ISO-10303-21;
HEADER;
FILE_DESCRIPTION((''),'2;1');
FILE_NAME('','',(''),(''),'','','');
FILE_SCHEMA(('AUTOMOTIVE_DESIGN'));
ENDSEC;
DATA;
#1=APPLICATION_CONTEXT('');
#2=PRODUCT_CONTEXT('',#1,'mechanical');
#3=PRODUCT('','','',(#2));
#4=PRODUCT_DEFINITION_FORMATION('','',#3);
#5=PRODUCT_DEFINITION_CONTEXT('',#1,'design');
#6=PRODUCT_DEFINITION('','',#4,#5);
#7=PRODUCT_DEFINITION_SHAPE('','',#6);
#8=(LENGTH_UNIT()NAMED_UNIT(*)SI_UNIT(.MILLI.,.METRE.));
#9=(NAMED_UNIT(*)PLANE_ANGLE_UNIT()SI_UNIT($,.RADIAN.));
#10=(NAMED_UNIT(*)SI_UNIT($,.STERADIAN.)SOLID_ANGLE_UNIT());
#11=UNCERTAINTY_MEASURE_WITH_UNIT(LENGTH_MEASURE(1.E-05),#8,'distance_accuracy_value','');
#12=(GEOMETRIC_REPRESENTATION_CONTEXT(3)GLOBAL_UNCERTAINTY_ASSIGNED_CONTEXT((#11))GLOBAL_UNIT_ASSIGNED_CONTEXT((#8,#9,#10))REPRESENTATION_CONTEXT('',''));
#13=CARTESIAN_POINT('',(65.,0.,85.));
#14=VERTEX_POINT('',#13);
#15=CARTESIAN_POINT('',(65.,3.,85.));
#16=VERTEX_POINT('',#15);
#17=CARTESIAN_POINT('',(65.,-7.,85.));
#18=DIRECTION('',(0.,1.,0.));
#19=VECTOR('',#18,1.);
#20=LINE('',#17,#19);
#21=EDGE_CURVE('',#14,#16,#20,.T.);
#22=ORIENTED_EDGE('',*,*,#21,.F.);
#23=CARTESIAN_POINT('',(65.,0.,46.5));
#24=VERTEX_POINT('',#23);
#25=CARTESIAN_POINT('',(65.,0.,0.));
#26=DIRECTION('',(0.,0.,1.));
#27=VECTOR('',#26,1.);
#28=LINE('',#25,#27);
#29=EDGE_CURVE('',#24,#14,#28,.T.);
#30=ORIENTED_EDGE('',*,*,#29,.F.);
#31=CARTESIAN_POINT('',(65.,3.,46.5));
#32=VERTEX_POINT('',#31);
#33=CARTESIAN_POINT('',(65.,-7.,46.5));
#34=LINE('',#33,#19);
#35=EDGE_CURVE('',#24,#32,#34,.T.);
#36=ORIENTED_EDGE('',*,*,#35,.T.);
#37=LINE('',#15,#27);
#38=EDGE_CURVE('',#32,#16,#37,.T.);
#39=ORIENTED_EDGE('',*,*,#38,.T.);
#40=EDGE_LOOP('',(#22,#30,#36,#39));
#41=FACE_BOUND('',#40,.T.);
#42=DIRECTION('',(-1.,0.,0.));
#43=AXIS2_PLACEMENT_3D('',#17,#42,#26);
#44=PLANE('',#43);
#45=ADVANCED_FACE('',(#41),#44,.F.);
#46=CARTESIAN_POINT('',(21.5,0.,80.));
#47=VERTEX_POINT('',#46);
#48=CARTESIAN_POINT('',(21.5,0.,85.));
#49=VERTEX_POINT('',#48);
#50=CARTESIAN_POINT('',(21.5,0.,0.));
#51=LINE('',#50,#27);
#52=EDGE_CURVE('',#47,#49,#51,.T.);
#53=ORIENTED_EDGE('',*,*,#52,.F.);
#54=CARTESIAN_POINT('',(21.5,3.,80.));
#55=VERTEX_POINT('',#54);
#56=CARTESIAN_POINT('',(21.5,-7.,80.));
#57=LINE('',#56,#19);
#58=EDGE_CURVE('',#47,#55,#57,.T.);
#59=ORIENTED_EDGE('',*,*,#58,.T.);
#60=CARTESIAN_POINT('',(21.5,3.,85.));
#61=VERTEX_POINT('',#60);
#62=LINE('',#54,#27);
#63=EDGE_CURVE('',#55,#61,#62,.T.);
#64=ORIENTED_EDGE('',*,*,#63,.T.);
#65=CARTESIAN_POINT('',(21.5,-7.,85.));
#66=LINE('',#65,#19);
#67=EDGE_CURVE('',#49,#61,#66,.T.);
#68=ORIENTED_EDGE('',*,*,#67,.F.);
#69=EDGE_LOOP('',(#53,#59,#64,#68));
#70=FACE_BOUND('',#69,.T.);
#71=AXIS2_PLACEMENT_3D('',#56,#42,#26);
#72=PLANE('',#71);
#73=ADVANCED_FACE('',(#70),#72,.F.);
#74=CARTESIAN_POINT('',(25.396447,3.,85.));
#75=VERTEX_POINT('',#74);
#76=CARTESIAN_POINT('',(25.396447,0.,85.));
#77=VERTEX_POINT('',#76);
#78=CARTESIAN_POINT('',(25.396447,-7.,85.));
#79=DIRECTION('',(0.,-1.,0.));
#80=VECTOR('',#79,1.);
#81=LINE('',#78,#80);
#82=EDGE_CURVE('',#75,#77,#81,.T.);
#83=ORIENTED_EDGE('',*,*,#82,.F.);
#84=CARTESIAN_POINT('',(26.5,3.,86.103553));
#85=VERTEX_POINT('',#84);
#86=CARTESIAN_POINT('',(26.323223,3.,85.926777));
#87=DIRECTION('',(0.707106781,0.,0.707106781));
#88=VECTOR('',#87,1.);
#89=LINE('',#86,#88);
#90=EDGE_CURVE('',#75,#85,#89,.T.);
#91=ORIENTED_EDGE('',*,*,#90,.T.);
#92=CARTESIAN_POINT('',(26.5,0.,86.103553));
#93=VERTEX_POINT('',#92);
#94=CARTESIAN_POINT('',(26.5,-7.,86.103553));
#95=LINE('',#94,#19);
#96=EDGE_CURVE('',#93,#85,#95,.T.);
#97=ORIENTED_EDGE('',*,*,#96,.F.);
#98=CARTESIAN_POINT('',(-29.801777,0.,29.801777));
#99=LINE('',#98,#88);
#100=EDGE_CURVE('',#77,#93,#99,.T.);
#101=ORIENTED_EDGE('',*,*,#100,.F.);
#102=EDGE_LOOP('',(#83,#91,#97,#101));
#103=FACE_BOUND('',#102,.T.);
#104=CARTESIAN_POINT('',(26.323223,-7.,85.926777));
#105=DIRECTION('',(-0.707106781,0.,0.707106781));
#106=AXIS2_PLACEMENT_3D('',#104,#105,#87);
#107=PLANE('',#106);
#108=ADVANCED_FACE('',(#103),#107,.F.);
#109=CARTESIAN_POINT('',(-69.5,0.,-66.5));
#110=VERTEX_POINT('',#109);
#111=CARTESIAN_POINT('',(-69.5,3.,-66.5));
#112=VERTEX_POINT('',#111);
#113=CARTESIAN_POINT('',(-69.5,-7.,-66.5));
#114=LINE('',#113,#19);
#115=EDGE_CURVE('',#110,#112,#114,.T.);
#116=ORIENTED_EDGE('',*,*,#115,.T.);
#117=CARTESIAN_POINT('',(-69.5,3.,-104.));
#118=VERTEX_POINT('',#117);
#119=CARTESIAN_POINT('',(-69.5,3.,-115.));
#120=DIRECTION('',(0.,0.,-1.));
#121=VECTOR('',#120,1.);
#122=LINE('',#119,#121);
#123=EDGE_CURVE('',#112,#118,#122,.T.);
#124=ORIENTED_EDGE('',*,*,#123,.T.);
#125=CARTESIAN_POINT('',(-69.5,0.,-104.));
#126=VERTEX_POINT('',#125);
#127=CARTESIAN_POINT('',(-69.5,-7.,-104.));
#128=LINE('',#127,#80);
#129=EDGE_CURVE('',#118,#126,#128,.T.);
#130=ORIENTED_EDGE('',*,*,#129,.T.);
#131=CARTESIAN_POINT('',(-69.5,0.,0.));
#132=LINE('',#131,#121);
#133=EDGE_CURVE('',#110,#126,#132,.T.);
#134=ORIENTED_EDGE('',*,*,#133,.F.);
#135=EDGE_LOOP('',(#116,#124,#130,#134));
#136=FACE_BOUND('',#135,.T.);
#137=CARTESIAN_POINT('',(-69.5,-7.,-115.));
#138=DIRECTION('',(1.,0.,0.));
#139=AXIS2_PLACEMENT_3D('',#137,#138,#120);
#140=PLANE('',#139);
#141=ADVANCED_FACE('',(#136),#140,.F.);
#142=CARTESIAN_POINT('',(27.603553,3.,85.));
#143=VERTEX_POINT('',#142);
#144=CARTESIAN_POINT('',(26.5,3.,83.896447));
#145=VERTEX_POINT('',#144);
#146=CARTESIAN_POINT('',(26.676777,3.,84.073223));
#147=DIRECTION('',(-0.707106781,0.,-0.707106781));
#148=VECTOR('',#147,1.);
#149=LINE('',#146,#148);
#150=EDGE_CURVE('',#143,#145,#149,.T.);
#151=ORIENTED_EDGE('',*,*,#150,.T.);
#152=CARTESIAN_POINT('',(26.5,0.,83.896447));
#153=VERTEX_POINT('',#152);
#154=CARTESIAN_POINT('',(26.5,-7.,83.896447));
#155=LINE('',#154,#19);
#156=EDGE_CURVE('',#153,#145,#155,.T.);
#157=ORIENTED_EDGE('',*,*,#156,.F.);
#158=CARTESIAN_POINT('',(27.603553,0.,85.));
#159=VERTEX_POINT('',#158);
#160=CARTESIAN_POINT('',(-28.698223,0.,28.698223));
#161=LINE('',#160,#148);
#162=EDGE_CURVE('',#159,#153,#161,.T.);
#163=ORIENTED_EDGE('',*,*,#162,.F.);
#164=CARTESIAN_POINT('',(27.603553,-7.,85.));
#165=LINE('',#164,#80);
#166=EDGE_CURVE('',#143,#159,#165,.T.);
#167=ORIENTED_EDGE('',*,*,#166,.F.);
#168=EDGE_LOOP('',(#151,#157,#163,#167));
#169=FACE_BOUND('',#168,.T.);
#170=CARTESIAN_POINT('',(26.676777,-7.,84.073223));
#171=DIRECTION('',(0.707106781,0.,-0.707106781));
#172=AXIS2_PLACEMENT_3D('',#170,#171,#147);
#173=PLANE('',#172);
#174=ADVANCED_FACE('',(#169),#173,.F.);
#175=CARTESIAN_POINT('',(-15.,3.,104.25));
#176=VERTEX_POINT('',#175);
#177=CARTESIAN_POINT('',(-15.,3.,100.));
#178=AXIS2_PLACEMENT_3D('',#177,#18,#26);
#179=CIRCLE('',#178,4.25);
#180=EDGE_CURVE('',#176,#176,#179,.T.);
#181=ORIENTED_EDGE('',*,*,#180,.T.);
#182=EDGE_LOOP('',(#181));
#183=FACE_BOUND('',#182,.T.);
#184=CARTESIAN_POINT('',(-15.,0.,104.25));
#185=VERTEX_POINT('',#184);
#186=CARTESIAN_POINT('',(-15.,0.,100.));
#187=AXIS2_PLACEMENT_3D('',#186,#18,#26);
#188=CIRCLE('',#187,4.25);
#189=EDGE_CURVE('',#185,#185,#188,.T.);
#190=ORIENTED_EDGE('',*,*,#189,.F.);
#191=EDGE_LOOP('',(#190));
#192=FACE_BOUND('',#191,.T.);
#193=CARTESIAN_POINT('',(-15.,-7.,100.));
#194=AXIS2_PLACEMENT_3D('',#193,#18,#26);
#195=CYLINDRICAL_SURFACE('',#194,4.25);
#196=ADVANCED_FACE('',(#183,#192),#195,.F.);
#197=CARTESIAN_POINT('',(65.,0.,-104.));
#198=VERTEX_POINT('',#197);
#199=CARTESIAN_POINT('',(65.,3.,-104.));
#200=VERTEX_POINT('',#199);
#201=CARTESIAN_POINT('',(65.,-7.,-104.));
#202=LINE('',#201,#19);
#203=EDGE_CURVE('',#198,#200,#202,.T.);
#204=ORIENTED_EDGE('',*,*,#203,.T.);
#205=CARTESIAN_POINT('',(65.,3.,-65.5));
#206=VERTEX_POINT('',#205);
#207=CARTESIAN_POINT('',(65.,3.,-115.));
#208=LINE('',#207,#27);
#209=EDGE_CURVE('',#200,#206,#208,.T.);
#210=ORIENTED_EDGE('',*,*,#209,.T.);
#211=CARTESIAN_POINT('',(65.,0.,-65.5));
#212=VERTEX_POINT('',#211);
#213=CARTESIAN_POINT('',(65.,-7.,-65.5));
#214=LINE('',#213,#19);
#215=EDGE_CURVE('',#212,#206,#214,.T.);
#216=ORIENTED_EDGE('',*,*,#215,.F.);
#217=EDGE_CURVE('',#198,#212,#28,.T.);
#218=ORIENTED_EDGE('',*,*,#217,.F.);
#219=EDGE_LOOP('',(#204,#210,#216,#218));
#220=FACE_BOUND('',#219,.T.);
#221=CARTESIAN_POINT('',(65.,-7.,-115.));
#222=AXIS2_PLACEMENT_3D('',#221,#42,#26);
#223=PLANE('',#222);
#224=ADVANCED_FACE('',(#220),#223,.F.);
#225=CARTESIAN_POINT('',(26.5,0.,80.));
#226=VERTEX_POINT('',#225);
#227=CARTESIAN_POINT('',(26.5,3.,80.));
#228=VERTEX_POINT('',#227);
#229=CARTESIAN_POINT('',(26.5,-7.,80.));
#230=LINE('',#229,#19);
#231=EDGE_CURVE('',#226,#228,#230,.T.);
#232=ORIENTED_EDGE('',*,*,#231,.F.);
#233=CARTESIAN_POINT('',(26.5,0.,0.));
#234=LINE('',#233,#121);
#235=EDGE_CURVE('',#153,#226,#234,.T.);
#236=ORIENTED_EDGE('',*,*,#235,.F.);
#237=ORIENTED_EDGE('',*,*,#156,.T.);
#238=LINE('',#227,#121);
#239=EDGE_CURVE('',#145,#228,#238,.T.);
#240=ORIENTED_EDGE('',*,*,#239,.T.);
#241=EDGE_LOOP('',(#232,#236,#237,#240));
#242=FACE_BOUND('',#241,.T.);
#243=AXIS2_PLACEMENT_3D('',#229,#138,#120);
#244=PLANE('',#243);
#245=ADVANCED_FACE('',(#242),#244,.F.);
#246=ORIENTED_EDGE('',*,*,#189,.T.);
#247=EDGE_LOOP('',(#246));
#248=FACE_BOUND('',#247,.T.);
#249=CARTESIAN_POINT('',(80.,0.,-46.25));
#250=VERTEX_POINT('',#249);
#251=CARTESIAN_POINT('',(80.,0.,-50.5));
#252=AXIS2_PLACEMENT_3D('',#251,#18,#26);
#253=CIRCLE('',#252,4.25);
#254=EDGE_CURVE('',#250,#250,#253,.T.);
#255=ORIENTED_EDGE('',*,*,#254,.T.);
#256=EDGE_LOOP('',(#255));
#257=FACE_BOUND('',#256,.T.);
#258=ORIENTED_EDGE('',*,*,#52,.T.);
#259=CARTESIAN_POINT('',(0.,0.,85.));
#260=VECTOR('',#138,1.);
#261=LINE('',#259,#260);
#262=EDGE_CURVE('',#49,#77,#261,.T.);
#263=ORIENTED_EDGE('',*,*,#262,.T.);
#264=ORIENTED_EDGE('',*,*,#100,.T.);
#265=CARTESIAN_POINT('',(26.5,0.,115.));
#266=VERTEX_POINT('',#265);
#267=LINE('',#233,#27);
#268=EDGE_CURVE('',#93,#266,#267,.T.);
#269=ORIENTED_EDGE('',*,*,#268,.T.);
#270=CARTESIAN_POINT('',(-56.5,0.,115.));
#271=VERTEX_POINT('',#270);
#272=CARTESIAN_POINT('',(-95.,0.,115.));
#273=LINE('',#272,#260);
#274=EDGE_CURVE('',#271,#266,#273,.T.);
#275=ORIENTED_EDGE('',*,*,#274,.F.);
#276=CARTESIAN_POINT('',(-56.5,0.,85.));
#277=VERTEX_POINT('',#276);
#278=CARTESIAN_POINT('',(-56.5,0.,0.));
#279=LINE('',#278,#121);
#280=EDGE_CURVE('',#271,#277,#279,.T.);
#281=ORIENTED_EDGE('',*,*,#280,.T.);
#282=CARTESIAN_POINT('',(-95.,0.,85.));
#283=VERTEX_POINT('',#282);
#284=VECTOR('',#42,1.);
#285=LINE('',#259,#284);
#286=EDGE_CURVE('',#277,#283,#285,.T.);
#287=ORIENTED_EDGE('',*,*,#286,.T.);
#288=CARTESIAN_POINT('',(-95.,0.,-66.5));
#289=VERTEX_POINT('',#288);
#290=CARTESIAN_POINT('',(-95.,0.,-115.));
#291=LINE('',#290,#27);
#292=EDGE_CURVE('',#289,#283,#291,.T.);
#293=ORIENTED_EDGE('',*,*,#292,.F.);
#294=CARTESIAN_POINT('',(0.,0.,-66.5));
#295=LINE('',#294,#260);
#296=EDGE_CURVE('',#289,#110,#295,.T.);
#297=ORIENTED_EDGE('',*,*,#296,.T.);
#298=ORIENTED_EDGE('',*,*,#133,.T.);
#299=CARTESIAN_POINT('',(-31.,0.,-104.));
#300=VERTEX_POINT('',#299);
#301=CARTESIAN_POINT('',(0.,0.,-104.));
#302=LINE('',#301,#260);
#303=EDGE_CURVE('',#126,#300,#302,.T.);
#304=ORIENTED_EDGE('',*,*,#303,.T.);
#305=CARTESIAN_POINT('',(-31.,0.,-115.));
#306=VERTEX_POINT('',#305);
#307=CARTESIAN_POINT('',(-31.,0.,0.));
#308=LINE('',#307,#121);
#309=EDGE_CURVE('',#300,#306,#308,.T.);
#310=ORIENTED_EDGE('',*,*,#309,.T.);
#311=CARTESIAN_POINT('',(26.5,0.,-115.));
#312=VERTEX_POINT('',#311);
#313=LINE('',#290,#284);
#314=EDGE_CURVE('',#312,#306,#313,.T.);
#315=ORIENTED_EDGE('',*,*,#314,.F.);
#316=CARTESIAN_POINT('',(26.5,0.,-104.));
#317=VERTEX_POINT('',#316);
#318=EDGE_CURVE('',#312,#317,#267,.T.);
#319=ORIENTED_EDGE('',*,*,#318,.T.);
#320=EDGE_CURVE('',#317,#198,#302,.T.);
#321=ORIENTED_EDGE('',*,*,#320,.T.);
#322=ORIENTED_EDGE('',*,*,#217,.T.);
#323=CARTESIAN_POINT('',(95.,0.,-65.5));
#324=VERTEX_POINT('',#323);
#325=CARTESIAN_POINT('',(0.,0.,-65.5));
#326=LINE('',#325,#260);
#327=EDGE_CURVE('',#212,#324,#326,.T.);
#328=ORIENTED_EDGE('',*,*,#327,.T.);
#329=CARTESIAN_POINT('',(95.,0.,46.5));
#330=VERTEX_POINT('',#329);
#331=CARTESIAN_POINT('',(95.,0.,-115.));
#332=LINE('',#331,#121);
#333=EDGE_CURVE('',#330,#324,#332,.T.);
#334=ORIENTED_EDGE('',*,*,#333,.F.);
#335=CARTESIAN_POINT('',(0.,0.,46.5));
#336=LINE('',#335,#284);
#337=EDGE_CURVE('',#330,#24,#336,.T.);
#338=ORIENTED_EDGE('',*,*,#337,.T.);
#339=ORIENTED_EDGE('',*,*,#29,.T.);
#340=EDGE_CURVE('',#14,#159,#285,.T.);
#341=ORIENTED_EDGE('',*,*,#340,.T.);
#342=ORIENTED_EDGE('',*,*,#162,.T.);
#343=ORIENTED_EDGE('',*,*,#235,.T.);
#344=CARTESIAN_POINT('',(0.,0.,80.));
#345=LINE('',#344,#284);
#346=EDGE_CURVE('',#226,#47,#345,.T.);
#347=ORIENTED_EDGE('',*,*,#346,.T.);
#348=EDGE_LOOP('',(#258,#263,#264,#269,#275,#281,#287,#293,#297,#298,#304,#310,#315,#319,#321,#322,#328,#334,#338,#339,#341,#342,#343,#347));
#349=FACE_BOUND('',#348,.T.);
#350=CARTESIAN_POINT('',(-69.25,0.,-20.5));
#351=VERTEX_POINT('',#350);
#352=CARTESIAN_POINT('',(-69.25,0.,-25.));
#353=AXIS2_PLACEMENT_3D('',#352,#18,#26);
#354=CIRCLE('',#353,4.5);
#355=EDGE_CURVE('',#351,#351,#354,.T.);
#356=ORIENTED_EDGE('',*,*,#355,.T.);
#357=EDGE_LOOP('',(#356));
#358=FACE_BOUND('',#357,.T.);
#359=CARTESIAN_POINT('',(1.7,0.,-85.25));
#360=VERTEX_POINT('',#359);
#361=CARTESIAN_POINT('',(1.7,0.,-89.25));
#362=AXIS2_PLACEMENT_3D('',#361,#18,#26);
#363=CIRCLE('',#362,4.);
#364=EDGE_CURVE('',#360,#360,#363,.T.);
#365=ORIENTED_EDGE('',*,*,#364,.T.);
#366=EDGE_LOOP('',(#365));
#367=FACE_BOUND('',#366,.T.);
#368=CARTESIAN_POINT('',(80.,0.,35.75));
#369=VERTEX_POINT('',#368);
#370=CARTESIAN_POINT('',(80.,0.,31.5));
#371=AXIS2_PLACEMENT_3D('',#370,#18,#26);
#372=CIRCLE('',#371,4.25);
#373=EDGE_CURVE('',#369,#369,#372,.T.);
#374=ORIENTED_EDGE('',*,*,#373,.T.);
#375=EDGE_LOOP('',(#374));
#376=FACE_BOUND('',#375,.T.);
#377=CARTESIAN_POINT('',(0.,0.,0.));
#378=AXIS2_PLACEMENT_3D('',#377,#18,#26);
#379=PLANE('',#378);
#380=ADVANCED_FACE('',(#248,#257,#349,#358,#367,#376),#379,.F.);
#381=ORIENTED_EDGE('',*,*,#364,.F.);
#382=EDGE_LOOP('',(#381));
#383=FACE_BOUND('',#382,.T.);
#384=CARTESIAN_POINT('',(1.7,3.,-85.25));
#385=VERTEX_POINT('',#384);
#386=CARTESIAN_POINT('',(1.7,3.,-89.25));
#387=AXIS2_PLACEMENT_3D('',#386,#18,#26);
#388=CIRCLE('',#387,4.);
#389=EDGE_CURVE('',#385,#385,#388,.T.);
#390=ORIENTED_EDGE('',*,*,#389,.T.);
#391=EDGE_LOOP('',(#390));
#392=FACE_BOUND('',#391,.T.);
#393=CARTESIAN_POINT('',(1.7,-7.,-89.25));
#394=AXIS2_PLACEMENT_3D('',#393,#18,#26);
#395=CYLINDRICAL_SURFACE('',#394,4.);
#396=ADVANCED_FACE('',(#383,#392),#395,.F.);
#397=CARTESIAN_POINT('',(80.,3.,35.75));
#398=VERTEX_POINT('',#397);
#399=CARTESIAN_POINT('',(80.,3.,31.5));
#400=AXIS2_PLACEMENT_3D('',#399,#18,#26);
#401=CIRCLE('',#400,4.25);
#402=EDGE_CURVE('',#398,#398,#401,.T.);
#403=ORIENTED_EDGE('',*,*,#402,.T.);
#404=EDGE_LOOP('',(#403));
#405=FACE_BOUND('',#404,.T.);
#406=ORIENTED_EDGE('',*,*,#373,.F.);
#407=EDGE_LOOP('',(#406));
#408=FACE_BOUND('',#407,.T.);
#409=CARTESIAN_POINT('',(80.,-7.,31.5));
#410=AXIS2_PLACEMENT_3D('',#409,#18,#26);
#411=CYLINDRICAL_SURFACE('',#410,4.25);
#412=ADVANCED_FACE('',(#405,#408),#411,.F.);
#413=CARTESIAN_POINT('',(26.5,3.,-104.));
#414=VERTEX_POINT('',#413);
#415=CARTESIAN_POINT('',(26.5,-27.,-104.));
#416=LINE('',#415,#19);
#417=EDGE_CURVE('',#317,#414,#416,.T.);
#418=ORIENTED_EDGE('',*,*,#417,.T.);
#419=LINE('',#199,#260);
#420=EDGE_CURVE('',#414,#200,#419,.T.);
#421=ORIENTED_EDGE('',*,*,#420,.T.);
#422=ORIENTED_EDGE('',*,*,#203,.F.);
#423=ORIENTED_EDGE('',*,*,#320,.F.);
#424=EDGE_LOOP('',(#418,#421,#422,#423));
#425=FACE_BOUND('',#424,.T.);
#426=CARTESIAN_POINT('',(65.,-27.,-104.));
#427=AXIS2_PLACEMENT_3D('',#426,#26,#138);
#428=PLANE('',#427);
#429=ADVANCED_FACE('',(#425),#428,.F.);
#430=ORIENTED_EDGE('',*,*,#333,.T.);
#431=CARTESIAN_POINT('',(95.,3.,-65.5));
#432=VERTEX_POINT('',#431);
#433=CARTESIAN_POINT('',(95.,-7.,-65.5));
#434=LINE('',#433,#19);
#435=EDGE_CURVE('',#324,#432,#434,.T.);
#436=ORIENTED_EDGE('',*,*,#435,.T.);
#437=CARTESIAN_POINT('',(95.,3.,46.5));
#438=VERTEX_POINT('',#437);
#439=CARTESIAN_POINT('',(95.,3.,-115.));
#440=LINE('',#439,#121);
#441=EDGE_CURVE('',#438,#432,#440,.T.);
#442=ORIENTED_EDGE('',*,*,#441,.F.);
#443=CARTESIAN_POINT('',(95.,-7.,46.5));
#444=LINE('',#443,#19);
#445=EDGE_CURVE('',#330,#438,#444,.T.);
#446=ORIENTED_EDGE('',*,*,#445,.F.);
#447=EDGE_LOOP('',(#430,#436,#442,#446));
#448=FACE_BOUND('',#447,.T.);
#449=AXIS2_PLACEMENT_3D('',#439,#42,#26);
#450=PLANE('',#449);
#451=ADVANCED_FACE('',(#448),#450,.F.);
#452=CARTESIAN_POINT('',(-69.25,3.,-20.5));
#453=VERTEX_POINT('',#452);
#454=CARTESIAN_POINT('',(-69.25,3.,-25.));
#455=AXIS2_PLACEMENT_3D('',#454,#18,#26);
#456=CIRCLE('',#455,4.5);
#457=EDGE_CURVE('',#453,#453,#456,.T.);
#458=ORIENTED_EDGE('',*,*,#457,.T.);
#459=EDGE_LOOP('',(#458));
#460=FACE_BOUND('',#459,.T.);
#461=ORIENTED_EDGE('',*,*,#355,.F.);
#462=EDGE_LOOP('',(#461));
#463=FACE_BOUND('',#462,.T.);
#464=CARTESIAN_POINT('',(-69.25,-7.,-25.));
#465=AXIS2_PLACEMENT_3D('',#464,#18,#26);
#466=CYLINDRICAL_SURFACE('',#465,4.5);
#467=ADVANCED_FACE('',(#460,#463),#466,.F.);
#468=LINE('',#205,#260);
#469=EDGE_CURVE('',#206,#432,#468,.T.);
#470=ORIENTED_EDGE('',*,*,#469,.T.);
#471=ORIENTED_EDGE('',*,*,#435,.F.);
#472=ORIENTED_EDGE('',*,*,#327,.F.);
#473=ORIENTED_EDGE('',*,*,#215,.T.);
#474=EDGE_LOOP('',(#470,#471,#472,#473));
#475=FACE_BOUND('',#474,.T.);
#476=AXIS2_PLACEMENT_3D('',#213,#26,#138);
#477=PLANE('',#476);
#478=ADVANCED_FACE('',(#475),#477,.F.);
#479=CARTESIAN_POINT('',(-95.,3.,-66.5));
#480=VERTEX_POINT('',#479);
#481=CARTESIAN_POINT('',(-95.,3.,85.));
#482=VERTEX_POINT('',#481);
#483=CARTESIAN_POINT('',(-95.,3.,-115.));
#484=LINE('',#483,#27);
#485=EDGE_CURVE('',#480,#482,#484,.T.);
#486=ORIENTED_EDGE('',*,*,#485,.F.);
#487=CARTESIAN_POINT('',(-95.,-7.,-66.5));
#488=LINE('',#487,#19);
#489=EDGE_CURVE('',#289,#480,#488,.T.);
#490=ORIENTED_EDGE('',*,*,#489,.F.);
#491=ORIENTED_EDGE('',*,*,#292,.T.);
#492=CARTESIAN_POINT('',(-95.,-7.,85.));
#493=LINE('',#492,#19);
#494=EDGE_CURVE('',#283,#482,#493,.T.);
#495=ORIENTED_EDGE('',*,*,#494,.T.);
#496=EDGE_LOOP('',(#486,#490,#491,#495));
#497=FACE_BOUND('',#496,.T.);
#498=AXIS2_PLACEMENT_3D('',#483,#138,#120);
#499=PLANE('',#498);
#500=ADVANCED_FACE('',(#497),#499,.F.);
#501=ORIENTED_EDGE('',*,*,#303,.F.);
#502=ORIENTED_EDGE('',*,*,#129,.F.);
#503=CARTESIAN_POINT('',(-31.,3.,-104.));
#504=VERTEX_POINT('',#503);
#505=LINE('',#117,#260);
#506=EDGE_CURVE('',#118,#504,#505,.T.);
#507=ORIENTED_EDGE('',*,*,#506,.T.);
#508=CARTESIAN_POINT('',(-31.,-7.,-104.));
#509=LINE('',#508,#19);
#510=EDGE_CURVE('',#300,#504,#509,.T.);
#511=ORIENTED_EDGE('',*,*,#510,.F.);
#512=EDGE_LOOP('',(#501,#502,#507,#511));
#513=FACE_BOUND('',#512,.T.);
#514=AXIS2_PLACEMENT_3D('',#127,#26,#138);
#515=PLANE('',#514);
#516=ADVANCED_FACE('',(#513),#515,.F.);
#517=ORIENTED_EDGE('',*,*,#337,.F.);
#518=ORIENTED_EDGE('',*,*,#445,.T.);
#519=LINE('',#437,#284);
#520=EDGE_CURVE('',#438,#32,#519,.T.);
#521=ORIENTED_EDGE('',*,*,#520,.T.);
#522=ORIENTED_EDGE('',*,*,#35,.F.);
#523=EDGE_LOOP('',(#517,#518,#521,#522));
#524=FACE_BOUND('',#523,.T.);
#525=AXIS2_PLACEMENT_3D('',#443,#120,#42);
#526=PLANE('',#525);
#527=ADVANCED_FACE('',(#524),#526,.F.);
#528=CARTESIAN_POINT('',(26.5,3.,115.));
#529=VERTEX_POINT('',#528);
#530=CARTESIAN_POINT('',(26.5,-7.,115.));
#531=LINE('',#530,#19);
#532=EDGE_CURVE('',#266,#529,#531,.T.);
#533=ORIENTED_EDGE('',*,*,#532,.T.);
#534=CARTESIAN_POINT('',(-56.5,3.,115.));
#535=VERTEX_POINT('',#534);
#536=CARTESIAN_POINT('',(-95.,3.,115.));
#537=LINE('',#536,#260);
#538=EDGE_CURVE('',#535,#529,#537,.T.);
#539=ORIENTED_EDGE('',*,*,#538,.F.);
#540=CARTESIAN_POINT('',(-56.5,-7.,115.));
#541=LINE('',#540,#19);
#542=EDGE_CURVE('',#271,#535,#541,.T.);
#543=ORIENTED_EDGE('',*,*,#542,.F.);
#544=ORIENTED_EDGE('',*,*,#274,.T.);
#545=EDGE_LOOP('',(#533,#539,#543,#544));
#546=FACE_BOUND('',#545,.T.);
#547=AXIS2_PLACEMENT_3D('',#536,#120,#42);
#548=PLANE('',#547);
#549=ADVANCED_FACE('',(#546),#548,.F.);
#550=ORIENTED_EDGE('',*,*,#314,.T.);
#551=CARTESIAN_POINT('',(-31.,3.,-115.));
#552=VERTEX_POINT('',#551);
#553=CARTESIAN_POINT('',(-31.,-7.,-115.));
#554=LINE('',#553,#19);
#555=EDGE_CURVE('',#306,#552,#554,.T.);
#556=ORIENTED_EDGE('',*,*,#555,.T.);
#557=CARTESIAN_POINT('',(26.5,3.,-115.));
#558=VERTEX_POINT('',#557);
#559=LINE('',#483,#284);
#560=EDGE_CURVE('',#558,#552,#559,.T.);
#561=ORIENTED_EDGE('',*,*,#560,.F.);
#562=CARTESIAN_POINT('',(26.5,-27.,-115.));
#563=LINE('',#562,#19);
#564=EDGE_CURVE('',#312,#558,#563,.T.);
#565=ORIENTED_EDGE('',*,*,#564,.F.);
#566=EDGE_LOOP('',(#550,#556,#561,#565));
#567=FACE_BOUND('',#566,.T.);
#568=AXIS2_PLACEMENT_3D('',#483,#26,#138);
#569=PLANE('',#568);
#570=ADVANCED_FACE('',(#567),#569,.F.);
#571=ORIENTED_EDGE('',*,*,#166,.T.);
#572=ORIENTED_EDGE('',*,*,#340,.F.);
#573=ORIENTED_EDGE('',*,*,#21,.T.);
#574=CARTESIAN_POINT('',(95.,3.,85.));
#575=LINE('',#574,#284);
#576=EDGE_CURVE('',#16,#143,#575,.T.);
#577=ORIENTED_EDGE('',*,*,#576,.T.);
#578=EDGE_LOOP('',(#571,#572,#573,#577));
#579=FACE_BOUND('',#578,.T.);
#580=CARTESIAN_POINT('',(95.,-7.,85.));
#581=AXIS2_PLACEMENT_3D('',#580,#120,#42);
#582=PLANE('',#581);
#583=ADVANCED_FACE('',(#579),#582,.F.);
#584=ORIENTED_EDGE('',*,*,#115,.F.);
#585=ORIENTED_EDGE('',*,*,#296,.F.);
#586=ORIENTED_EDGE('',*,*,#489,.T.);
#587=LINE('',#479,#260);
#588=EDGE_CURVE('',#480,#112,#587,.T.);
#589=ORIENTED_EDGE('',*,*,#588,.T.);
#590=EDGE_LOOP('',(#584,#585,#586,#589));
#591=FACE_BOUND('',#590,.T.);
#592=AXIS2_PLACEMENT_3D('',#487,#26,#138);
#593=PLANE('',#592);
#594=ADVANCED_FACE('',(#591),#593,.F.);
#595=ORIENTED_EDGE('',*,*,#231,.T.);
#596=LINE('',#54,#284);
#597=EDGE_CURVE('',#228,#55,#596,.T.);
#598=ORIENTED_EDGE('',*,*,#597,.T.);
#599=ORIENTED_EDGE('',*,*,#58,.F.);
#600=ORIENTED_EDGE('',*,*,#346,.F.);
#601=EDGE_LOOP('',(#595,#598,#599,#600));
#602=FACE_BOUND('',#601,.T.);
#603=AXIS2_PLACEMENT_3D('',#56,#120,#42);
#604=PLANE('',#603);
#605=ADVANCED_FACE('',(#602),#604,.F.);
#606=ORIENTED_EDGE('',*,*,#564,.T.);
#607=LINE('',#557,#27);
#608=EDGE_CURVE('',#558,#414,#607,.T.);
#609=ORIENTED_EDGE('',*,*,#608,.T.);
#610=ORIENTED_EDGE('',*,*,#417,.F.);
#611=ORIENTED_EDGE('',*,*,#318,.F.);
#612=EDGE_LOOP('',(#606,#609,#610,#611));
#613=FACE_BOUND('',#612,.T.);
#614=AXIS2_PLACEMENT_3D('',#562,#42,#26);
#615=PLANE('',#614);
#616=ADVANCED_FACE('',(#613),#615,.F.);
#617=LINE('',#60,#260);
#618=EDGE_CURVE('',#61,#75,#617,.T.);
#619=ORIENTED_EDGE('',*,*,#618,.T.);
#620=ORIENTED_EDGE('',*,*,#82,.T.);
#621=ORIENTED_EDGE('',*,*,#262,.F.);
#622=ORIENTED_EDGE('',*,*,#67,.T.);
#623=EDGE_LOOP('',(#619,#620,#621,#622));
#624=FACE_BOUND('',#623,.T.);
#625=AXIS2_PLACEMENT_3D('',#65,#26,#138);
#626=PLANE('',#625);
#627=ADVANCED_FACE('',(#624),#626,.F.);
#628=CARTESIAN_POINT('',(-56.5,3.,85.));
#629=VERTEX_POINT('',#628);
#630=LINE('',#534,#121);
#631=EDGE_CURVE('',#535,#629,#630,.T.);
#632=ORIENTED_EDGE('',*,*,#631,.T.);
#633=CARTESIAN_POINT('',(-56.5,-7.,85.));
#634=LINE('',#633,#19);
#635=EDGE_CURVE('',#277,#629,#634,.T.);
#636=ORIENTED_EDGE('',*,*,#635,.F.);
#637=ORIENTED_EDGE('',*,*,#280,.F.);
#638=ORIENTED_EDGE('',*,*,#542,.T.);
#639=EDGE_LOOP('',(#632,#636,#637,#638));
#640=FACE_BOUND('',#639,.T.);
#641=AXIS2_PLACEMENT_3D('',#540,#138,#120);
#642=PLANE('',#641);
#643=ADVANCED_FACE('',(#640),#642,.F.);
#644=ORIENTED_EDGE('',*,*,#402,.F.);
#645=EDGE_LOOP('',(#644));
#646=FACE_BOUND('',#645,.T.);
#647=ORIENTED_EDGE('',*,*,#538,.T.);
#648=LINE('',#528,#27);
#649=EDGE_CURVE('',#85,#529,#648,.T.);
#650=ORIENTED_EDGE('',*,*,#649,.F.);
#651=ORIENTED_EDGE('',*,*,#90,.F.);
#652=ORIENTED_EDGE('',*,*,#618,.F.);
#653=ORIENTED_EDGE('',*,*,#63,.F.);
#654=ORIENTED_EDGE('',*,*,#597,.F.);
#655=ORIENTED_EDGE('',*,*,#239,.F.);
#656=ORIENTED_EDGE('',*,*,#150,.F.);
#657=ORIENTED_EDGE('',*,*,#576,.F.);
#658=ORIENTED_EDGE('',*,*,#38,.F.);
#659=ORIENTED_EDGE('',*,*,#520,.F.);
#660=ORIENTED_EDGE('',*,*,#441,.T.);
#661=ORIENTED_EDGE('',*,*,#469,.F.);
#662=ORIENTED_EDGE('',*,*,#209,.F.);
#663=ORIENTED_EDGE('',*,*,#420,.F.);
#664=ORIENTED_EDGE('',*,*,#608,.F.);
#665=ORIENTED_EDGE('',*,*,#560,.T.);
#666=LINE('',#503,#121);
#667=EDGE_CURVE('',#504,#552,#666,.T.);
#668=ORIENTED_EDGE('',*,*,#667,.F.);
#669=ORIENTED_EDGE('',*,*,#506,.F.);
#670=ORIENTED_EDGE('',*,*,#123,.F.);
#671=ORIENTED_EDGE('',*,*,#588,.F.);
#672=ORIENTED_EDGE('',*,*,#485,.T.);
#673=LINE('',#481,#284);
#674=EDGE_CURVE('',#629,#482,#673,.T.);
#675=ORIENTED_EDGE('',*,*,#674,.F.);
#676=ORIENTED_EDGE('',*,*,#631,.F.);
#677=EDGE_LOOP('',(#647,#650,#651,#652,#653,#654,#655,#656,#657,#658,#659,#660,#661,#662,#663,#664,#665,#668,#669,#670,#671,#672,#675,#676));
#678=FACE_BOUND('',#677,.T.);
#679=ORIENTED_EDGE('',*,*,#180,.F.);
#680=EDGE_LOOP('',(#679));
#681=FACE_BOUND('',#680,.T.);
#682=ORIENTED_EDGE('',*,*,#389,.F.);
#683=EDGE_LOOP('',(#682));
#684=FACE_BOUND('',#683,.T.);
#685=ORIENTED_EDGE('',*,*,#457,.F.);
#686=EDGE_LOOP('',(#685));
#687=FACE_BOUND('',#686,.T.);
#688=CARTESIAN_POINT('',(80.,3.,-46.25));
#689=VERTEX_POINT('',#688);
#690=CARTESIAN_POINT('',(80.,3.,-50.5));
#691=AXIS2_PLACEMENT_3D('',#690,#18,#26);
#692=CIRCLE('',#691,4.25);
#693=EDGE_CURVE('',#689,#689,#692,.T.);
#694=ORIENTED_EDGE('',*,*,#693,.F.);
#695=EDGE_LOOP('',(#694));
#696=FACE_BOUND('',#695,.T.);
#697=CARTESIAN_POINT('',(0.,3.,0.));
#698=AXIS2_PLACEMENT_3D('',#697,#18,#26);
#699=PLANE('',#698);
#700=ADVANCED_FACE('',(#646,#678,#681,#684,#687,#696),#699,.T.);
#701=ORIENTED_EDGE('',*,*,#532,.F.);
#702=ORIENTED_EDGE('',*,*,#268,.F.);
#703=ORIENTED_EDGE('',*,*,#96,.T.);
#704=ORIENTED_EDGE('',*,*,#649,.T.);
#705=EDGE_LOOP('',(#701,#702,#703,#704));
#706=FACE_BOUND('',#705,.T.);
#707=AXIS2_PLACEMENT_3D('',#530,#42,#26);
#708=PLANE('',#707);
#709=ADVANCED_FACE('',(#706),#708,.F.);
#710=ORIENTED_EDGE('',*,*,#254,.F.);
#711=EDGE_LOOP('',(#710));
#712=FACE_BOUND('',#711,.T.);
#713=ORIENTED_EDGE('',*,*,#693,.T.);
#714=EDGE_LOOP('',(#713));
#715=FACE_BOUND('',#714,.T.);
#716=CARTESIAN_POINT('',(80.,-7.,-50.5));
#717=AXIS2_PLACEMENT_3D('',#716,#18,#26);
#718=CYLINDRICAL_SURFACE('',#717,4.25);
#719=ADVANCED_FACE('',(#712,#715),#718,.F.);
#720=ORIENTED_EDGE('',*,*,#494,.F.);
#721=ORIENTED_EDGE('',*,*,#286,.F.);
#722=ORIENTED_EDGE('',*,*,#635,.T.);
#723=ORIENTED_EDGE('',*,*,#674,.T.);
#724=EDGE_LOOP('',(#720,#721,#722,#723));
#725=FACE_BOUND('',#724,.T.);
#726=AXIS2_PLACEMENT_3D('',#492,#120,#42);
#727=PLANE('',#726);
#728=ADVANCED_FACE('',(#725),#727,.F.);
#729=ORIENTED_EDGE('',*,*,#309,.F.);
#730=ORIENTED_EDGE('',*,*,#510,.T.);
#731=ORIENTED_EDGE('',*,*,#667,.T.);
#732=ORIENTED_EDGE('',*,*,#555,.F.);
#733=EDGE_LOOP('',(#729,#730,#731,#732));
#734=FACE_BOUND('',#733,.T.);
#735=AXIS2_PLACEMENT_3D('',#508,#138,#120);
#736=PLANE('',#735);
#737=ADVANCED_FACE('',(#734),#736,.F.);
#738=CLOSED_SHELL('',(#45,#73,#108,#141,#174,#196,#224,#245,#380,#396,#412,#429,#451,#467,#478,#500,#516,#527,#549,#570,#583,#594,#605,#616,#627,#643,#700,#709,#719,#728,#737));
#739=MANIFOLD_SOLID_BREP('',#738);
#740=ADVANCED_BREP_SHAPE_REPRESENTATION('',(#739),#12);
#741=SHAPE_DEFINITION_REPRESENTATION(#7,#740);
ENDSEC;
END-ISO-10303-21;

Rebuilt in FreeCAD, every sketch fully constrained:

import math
import FreeCAD as App
import Part
import Sketcher
Q = App.Units.Quantity


def add_polygon(sketch, points):
    """Adds a closed chain of lines whose ends are joined by coincident constraints."""
    first, n = sketch.GeometryCount, len(points)
    for a, b in zip(points, points[1:] + points[:1]):
        sketch.addGeometry(Part.LineSegment(App.Vector(*a, 0), App.Vector(*b, 0)), False)
    for i in range(n):
        sketch.addConstraint(Sketcher.Constraint("Coincident", first + i, 2, first + (i + 1) % n, 1))

doc = App.newDocument("Part")
body = doc.addObject("PartDesign::Body", "Body")

sketch1 = body.newObject("Sketcher::SketchObject", "Sketch")
sketch1.AttachmentSupport = (doc.getObject("XZ_Plane"), [""])
sketch1.MapMode = "FlatFace"
add_polygon(sketch1, [(-95, -115), (-95, 115), (95, 115), (95, -115)])
sketch1.addConstraint([
    Sketcher.Constraint("Vertical", 0),
    Sketcher.Constraint("Horizontal", 1),
    Sketcher.Constraint("Vertical", 2),
    Sketcher.Constraint("Horizontal", 3),
    Sketcher.Constraint("Symmetric", 0, 2, 2, 2, -1, 1),
    Sketcher.Constraint("DistanceX", 1, 1, 1, 2, 190.0),
    Sketcher.Constraint("DistanceY", 0, 1, 0, 2, 230.0),
])
pad1 = body.newObject("PartDesign::Pad", "Pad")
pad1.Profile = sketch1
pad1.Length = 3
pad1.Reversed = True

sketch2 = body.newObject("Sketcher::SketchObject", "Sketch001")
sketch2.AttachmentSupport = (doc.getObject("XZ_Plane"), [""])
sketch2.MapMode = "FlatFace"
sketch2.AttachmentOffset = App.Placement(App.Vector(0, 0, -3), App.Rotation())
add_polygon(sketch2, [(65, 85), (65, 115), (95, 115), (95, 85)])
sketch2.addConstraint([
    Sketcher.Constraint("Vertical", 0),
    Sketcher.Constraint("Horizontal", 1),
    Sketcher.Constraint("Vertical", 2),
    Sketcher.Constraint("Horizontal", 3),
    Sketcher.Constraint("Equal", 3, 0),
    Sketcher.Constraint("DistanceX", 1, 1, 1, 2, 30.0),
    Sketcher.Constraint("DistanceX", -1, 1, 0, 2, 65.0),
    Sketcher.Constraint("DistanceY", -1, 1, 0, 2, 115.0),
])
pocket1 = body.newObject("PartDesign::Pocket", "Pocket")
pocket1.Profile = sketch2
pocket1.Length = 10
pocket1.Reversed = True

sketch3 = body.newObject("Sketcher::SketchObject", "Sketch002")
sketch3.AttachmentSupport = (doc.getObject("XZ_Plane"), [""])
sketch3.MapMode = "FlatFace"
sketch3.AttachmentOffset = App.Placement(App.Vector(0, 0, -3), App.Rotation())
add_polygon(sketch3, [(26, 85), (26, 115), (65, 115), (65, 85)])
sketch3.addConstraint([
    Sketcher.Constraint("Vertical", 0),
    Sketcher.Constraint("Horizontal", 1),
    Sketcher.Constraint("Vertical", 2),
    Sketcher.Constraint("Horizontal", 3),
    Sketcher.Constraint("DistanceY", 0, 1, 0, 2, 30.0),
    Sketcher.Constraint("DistanceX", 1, 1, 1, 2, 38.5),
    Sketcher.Constraint("DistanceY", -1, 1, 0, 2, 115.0),
    Sketcher.Constraint("DistanceX", -1, 1, 1, 2, 65.0),
])
pocket2 = body.newObject("PartDesign::Pocket", "Pocket001")
pocket2.Profile = sketch3
pocket2.Length = 10
pocket2.Reversed = True

sketch4 = body.newObject("Sketcher::SketchObject", "Sketch003")
sketch4.AttachmentSupport = (doc.getObject("XZ_Plane"), [""])
sketch4.MapMode = "FlatFace"
sketch4.AttachmentOffset = App.Placement(App.Vector(0, 0, -3), App.Rotation())
add_polygon(sketch4, [(65, 46), (65, 85), (95, 85), (95, 46)])
sketch4.addConstraint([
    Sketcher.Constraint("Vertical", 0),
    Sketcher.Constraint("Horizontal", 1),
    Sketcher.Constraint("Vertical", 2),
    Sketcher.Constraint("Horizontal", 3),
    Sketcher.Constraint("DistanceX", 1, 1, 1, 2, 30.0),
    Sketcher.Constraint("DistanceY", 0, 1, 0, 2, 38.5),
    Sketcher.Constraint("DistanceX", -1, 1, 0, 2, 65.0),
    Sketcher.Constraint("DistanceY", -1, 1, 0, 2, 85.0),
])
pocket3 = body.newObject("PartDesign::Pocket", "Pocket002")
pocket3.Profile = sketch4
pocket3.Length = 10
pocket3.Reversed = True

sketch5 = body.newObject("Sketcher::SketchObject", "Sketch004")
sketch5.AttachmentSupport = (doc.getObject("XZ_Plane"), [""])
sketch5.MapMode = "FlatFace"
sketch5.AttachmentOffset = App.Placement(App.Vector(0, 0, -3), App.Rotation())
add_polygon(sketch5, [(-95, 85), (-95, 115), (-56, 115), (-56, 85)])
sketch5.addConstraint([
    Sketcher.Constraint("Vertical", 0),
    Sketcher.Constraint("Horizontal", 1),
    Sketcher.Constraint("Vertical", 2),
    Sketcher.Constraint("Horizontal", 3),
    Sketcher.Constraint("DistanceY", 0, 1, 0, 2, 30.0),
    Sketcher.Constraint("DistanceX", 1, 1, 1, 2, 38.5),
    Sketcher.Constraint("DistanceX", 0, 2, -1, 1, 95.0),
    Sketcher.Constraint("DistanceY", -1, 1, 0, 2, 115.0),
])
pocket4 = body.newObject("PartDesign::Pocket", "Pocket003")
pocket4.Profile = sketch5
pocket4.Length = 10
pocket4.Reversed = True

sketch6 = body.newObject("Sketcher::SketchObject", "Sketch005")
sketch6.AttachmentSupport = (doc.getObject("XZ_Plane"), [""])
sketch6.MapMode = "FlatFace"
sketch6.AttachmentOffset = App.Placement(App.Vector(0, 0, -3), App.Rotation())
add_polygon(sketch6, [(26.5, 85.8), (26.5, 85), (27.2, 85), (26.5, 84.2), (25.8, 85)])
sketch6.addConstraint([
    Sketcher.Constraint("Vertical", 0),
    Sketcher.Constraint("Horizontal", 1),
    Sketcher.Constraint("Perpendicular", 2, 3),
    Sketcher.Constraint("Perpendicular", 3, 4),
    Sketcher.Constraint("Horizontal", 1, 2, 3, 2),
    Sketcher.Constraint("Vertical", 0, 2, 2, 2),
    Sketcher.Constraint("Equal", 1, 0),
    Sketcher.Constraint("DistanceY", -1, 1, 0, 2, 85.0),
    Sketcher.Constraint("DistanceX", 1, 1, 1, 2, 0.75),
    Sketcher.Constraint("DistanceX", -1, 1, 0, 2, 26.5),
])
pocket5 = body.newObject("PartDesign::Pocket", "Pocket004")
pocket5.Profile = sketch6
pocket5.Length = 10
pocket5.Reversed = True

sketch7 = body.newObject("Sketcher::SketchObject", "Sketch006")
sketch7.AttachmentSupport = (doc.getObject("XZ_Plane"), [""])
sketch7.MapMode = "FlatFace"
sketch7.AttachmentOffset = App.Placement(App.Vector(0, 0, -3), App.Rotation())
add_polygon(sketch7, [(22, 80), (22, 85), (26, 85), (26, 80)])
sketch7.addConstraint([
    Sketcher.Constraint("Vertical", 0),
    Sketcher.Constraint("Horizontal", 1),
    Sketcher.Constraint("Vertical", 2),
    Sketcher.Constraint("Horizontal", 3),
    Sketcher.Constraint("Equal", 3, 0),
    Sketcher.Constraint("DistanceX", 1, 1, 1, 2, 5.0),
    Sketcher.Constraint("DistanceY", -1, 1, 0, 2, 85.0),
    Sketcher.Constraint("DistanceX", -1, 1, 0, 2, 21.5),
])
pocket6 = body.newObject("PartDesign::Pocket", "Pocket005")
pocket6.Profile = sketch7
pocket6.Length = 10
pocket6.Reversed = True

sketch8 = body.newObject("Sketcher::SketchObject", "Sketch007")
sketch8.AttachmentSupport = (doc.getObject("XZ_Plane"), [""])
sketch8.MapMode = "FlatFace"
sketch8.AttachmentOffset = App.Placement(App.Vector(0, 0, -3), App.Rotation())
add_polygon(sketch8, [(26.5, 85.75), (25.75, 85), (25.57, 85.18), (26.32, 85.93)])
sketch8.addConstraint([
    Sketcher.Constraint("Perpendicular", 0, 1),
    Sketcher.Constraint("Perpendicular", 1, 2),
    Sketcher.Constraint("Perpendicular", 2, 3),
    Sketcher.Constraint("Angle", 0, Q("-135 deg")),
    Sketcher.Constraint("DistanceY", -1, 1, 0, 2, 85.0),
    Sketcher.Constraint("DistanceX", -1, 1, 3, 2, 26.5),
    Sketcher.Constraint("Distance", 1, 0.25),
    Sketcher.Constraint("DistanceX", -1, 1, 0, 2, 25.75),
])
pocket7 = body.newObject("PartDesign::Pocket", "Pocket006")
pocket7.Profile = sketch8
pocket7.Length = 10
pocket7.Reversed = True

sketch9 = body.newObject("Sketcher::SketchObject", "Sketch008")
sketch9.AttachmentSupport = (doc.getObject("XZ_Plane"), [""])
sketch9.MapMode = "FlatFace"
sketch9.AttachmentOffset = App.Placement(App.Vector(0, 0, -3), App.Rotation())
add_polygon(sketch9, [(26.5, 84.25), (27.25, 85), (27.43, 84.82), (26.68, 84.07)])
sketch9.addConstraint([
    Sketcher.Constraint("Perpendicular", 0, 1),
    Sketcher.Constraint("Perpendicular", 1, 2),
    Sketcher.Constraint("Perpendicular", 2, 3),
    Sketcher.Constraint("Angle", 0, Q("45 deg")),
    Sketcher.Constraint("DistanceY", -1, 1, 0, 2, 85.0),
    Sketcher.Constraint("DistanceX", -1, 1, 3, 2, 26.5),
    Sketcher.Constraint("Distance", 1, 0.25),
    Sketcher.Constraint("DistanceX", -1, 1, 0, 2, 27.25),
])
pocket8 = body.newObject("PartDesign::Pocket", "Pocket007")
pocket8.Profile = sketch9
pocket8.Length = 10
pocket8.Reversed = True

sketch10 = body.newObject("Sketcher::SketchObject", "Sketch009")
sketch10.AttachmentSupport = (doc.getObject("XZ_Plane"), [""])
sketch10.MapMode = "FlatFace"
sketch10.AttachmentOffset = App.Placement(App.Vector(0, 0, -3), App.Rotation())
add_polygon(sketch10, [(25.57, 85.18), (25.75, 85), (25, 84.25), (24.83, 84.43)])
add_polygon(sketch10, [(26.5, 85.75), (26.32, 85.93), (26.74, 86.34), (26.91, 86.16)])
add_polygon(sketch10, [(27.43, 84.82), (27.25, 85), (27.6, 85.35), (27.78, 85.17)])
add_polygon(sketch10, [(26.5, 84.25), (26.68, 84.07), (26.25, 83.65), (26.08, 83.83)])
sketch10.addConstraint([
    Sketcher.Constraint("Perpendicular", 0, 1),
    Sketcher.Constraint("Perpendicular", 1, 2),
    Sketcher.Constraint("Perpendicular", 2, 3),
    Sketcher.Constraint("Perpendicular", 3, 4),
    Sketcher.Constraint("Perpendicular", 4, 5),
    Sketcher.Constraint("Perpendicular", 5, 6),
    Sketcher.Constraint("Perpendicular", 6, 7),
    Sketcher.Constraint("Perpendicular", 7, 8),
    Sketcher.Constraint("Perpendicular", 8, 9),
    Sketcher.Constraint("Perpendicular", 9, 10),
    Sketcher.Constraint("Perpendicular", 10, 11),
    Sketcher.Constraint("Perpendicular", 11, 12),
    Sketcher.Constraint("Perpendicular", 12, 13),
    Sketcher.Constraint("Perpendicular", 13, 14),
    Sketcher.Constraint("Perpendicular", 14, 15),
    Sketcher.Constraint("Horizontal", 0, 2, 8, 2),
    Sketcher.Constraint("Vertical", 7, 2, 15, 2),
    Sketcher.Constraint("Equal", 2, 4),
    Sketcher.Constraint("Equal", 6, 8),
    Sketcher.Constraint("Equal", 10, 12),
    Sketcher.Constraint("Angle", 0, Q("-45 deg")),
    Sketcher.Constraint("DistanceY", -1, 1, 0, 2, 85.0),
    Sketcher.Constraint("DistanceX", -1, 1, 7, 2, 26.5),
    Sketcher.Constraint("DistanceX", 0, 2, 8, 2, 1.5),
    Sketcher.Constraint("Distance", 0, 0.25),
    Sketcher.Constraint("DistanceX", -1, 1, 0, 2, 25.75),
    Sketcher.Constraint("DistanceY", -1, 1, 7, 2, 85.75),
    Sketcher.Constraint("DistanceY", -1, 1, 15, 2, 84.25),
    Sketcher.Constraint("DistanceX", -1, 1, 1, 2, 25.002201),
    Sketcher.Constraint("DistanceY", 10, 2, 5, 2, 1.1685),
    Sketcher.Constraint("Distance", 9, 0.493719),
    Sketcher.Constraint("DistanceX", -1, 1, 13, 2, 26.253709),
])
pocket9 = body.newObject("PartDesign::Pocket", "Pocket008")
pocket9.Profile = sketch10
pocket9.Length = 10
pocket9.Reversed = True

sketch11 = body.newObject("Sketcher::SketchObject", "Sketch010")
sketch11.AttachmentSupport = (doc.getObject("XZ_Plane"), [""])
sketch11.MapMode = "FlatFace"
sketch11.AttachmentOffset = App.Placement(App.Vector(0, 0, -3), App.Rotation())
add_polygon(sketch11, [(65, -115), (65, -76), (95, -76), (95, -115)])
sketch11.addConstraint([
    Sketcher.Constraint("Vertical", 0),
    Sketcher.Constraint("Horizontal", 1),
    Sketcher.Constraint("Vertical", 2),
    Sketcher.Constraint("Horizontal", 3),
    Sketcher.Constraint("DistanceX", 1, 1, 1, 2, 30.0),
    Sketcher.Constraint("DistanceY", 0, 1, 0, 2, 38.5),
    Sketcher.Constraint("DistanceX", -1, 1, 0, 2, 65.0),
    Sketcher.Constraint("DistanceY", 2, 2, -1, 1, 115.0),
])
pocket10 = body.newObject("PartDesign::Pocket", "Pocket009")
pocket10.Profile = sketch11
pocket10.Length = 10
pocket10.Reversed = True

sketch12 = body.newObject("Sketcher::SketchObject", "Sketch011")
sketch12.AttachmentSupport = (doc.getObject("XZ_Plane"), [""])
sketch12.MapMode = "FlatFace"
sketch12.AttachmentOffset = App.Placement(App.Vector(0, 0, -3), App.Rotation())
add_polygon(sketch12, [(-95, -115), (-95, -66), (-70, -66), (-70, -115)])
sketch12.addConstraint([
    Sketcher.Constraint("Vertical", 0),
    Sketcher.Constraint("Horizontal", 1),
    Sketcher.Constraint("Vertical", 2),
    Sketcher.Constraint("Horizontal", 3),
    Sketcher.Constraint("DistanceX", 1, 1, 1, 2, 25.5),
    Sketcher.Constraint("DistanceY", 0, 1, 0, 2, 48.5),
    Sketcher.Constraint("DistanceX", 0, 2, -1, 1, 95.0),
    Sketcher.Constraint("DistanceY", 2, 2, -1, 1, 115.0),
])
pocket11 = body.newObject("PartDesign::Pocket", "Pocket010")
pocket11.Profile = sketch12
pocket11.Length = 10
pocket11.Reversed = True

sketch13 = body.newObject("Sketcher::SketchObject", "Sketch012")
sketch13.AttachmentSupport = (doc.getObject("XZ_Plane"), [""])
sketch13.MapMode = "FlatFace"
sketch13.AttachmentOffset = App.Placement(App.Vector(0, 0, -3), App.Rotation())
add_polygon(sketch13, [(-70, -115), (-70, -104), (-46, -104), (-46, -115)])
sketch13.addConstraint([
    Sketcher.Constraint("Vertical", 0),
    Sketcher.Constraint("Horizontal", 1),
    Sketcher.Constraint("Vertical", 2),
    Sketcher.Constraint("Horizontal", 3),
    Sketcher.Constraint("DistanceX", 1, 1, 1, 2, 24.0),
    Sketcher.Constraint("DistanceY", 0, 1, 0, 2, 11.0),
    Sketcher.Constraint("DistanceY", 0, 2, -1, 1, 104.0),
    Sketcher.Constraint("DistanceX", 0, 2, -1, 1, 69.5),
])
pocket12 = body.newObject("PartDesign::Pocket", "Pocket011")
pocket12.Profile = sketch13
pocket12.Length = 10
pocket12.Reversed = True

sketch14 = body.newObject("Sketcher::SketchObject", "Sketch013")
sketch14.AttachmentSupport = (doc.getObject("XZ_Plane"), [""])
sketch14.MapMode = "FlatFace"
sketch14.AttachmentOffset = App.Placement(App.Vector(0, 0, -3), App.Rotation())
add_polygon(sketch14, [(-46, -115), (-46, -104), (-31, -104), (-31, -115)])
sketch14.addConstraint([
    Sketcher.Constraint("Vertical", 0),
    Sketcher.Constraint("Horizontal", 1),
    Sketcher.Constraint("Vertical", 2),
    Sketcher.Constraint("Horizontal", 3),
    Sketcher.Constraint("DistanceY", 0, 1, 0, 2, 11.0),
    Sketcher.Constraint("DistanceX", 1, 1, 1, 2, 14.5),
    Sketcher.Constraint("DistanceY", 0, 2, -1, 1, 104.0),
    Sketcher.Constraint("DistanceX", 1, 2, -1, 1, 31.0),
])
pocket13 = body.newObject("PartDesign::Pocket", "Pocket012")
pocket13.Profile = sketch14
pocket13.Length = 10
pocket13.Reversed = True

sketch15 = body.newObject("Sketcher::SketchObject", "Sketch014")
sketch15.AttachmentSupport = (doc.getObject("XZ_Plane"), [""])
sketch15.MapMode = "FlatFace"
sketch15.AttachmentOffset = App.Placement(App.Vector(0, 0, -3), App.Rotation())
sketch15.addGeometry([
    Part.Circle(App.Vector(80, -61.5, 0), App.Vector(0, 0, 1), 4.2),
    Part.Circle(App.Vector(80, 31.5, 0), App.Vector(0, 0, 1), 4.2),
], False)
sketch15.addConstraint([
    Sketcher.Constraint("Equal", 0, 1),
    Sketcher.Constraint("Vertical", 0, 3, 1, 3),
    Sketcher.Constraint("Diameter", 0, 8.5),
    Sketcher.Constraint("DistanceX", -1, 1, 0, 3, 80.0),
    Sketcher.Constraint("DistanceY", 0, 3, 1, 3, 93.0),
    Sketcher.Constraint("DistanceY", 0, 3, -1, 1, 61.5),
])
pocket14 = body.newObject("PartDesign::Pocket", "Pocket013")
pocket14.Profile = sketch15
pocket14.Length = 10
pocket14.Reversed = True

sketch16 = body.newObject("Sketcher::SketchObject", "Sketch015")
sketch16.AttachmentSupport = (doc.getObject("XZ_Plane"), [""])
sketch16.MapMode = "FlatFace"
sketch16.AttachmentOffset = App.Placement(App.Vector(0, 0, -3), App.Rotation())
sketch16.addGeometry(Part.Circle(App.Vector(-15, 100, 0), App.Vector(0, 0, 1), 4.2), False)
sketch16.addConstraint([
    Sketcher.Constraint("Diameter", 0, 8.5),
    Sketcher.Constraint("DistanceX", 0, 3, -1, 1, 15.0),
    Sketcher.Constraint("DistanceY", -1, 1, 0, 3, 100.0),
])
pocket15 = body.newObject("PartDesign::Pocket", "Pocket014")
pocket15.Profile = sketch16
pocket15.Length = 10
pocket15.Reversed = True

sketch17 = body.newObject("Sketcher::SketchObject", "Sketch016")
sketch17.AttachmentSupport = (doc.getObject("XZ_Plane"), [""])
sketch17.MapMode = "FlatFace"
sketch17.AttachmentOffset = App.Placement(App.Vector(0, 0, -3), App.Rotation())
sketch17.addGeometry(Part.Circle(App.Vector(-69.2, -25, 0), App.Vector(0, 0, 1), 4.5), False)
sketch17.addConstraint([
    Sketcher.Constraint("Diameter", 0, 9.0),
    Sketcher.Constraint("DistanceY", 0, 3, -1, 1, 25.0),
    Sketcher.Constraint("DistanceX", 0, 3, -1, 1, 69.25),
])
pocket16 = body.newObject("PartDesign::Pocket", "Pocket015")
pocket16.Profile = sketch17
pocket16.Length = 10
pocket16.Reversed = True

sketch18 = body.newObject("Sketcher::SketchObject", "Sketch017")
sketch18.AttachmentSupport = (doc.getObject("XZ_Plane"), [""])
sketch18.MapMode = "FlatFace"
sketch18.AttachmentOffset = App.Placement(App.Vector(0, 0, -3), App.Rotation())
sketch18.addGeometry(Part.Circle(App.Vector(1.7, -89.2, 0), App.Vector(0, 0, 1), 4), False)
sketch18.addConstraint([
    Sketcher.Constraint("Diameter", 0, 8.0),
    Sketcher.Constraint("DistanceX", -1, 1, 0, 3, 1.7),
    Sketcher.Constraint("DistanceY", 0, 3, -1, 1, 89.25),
])
pocket17 = body.newObject("PartDesign::Pocket", "Pocket016")
pocket17.Profile = sketch18
pocket17.Length = 10
pocket17.Reversed = True

sketch19 = body.newObject("Sketcher::SketchObject", "Sketch018")
sketch19.AttachmentSupport = (doc.getObject("XZ_Plane"), [""])
sketch19.MapMode = "FlatFace"
sketch19.AttachmentOffset = App.Placement(App.Vector(0, 0, -3), App.Rotation())
add_polygon(sketch19, [(65, -104), (65, -66), (95, -66), (95, -104)])
sketch19.addConstraint([
    Sketcher.Constraint("Vertical", 0),
    Sketcher.Constraint("Horizontal", 1),
    Sketcher.Constraint("Vertical", 2),
    Sketcher.Constraint("Horizontal", 3),
    Sketcher.Constraint("DistanceX", 1, 1, 1, 2, 30.0),
    Sketcher.Constraint("DistanceY", 0, 1, 0, 2, 38.5),
    Sketcher.Constraint("DistanceX", -1, 1, 0, 2, 65.0),
    Sketcher.Constraint("DistanceY", 2, 2, -1, 1, 104.0),
])
pocket18 = body.newObject("PartDesign::Pocket", "Pocket017")
pocket18.Profile = sketch19
pocket18.Length = 10
pocket18.Reversed = True

sketch20 = body.newObject("Sketcher::SketchObject", "Sketch019")
sketch20.AttachmentSupport = (doc.getObject("XZ_Plane"), [""])
sketch20.MapMode = "FlatFace"
sketch20.AttachmentOffset = App.Placement(App.Vector(0, 0, -3), App.Rotation())
sketch20.addGeometry(Part.Circle(App.Vector(80, -50.5, 0), App.Vector(0, 0, 1), 4.2), False)
sketch20.addConstraint([
    Sketcher.Constraint("Diameter", 0, 8.5),
    Sketcher.Constraint("DistanceX", -1, 1, 0, 3, 80.0),
    Sketcher.Constraint("DistanceY", 0, 3, -1, 1, 50.5),
])
pocket19 = body.newObject("PartDesign::Pocket", "Pocket018")
pocket19.Profile = sketch20
pocket19.Length = 10
pocket19.Reversed = True

sketch21 = body.newObject("Sketcher::SketchObject", "Sketch020")
sketch21.AttachmentSupport = (doc.getObject("XZ_Plane"), [""])
sketch21.MapMode = "FlatFace"
sketch21.AttachmentOffset = App.Placement(App.Vector(0, 0, -3), App.Rotation())
sketch21.addGeometry([
    Part.LineSegment(App.Vector(81.4, -65.5, 0), App.Vector(78.6, -65.5, 0)),
    Part.ArcOfCircle(Part.Circle(App.Vector(80, -61.5, 0), App.Vector(0, 0, 1), 4.2), math.radians(-70), math.radians(250)),
], False)
sketch21.addConstraint([
    Sketcher.Constraint("Coincident", 0, 1, 1, 1),
    Sketcher.Constraint("Coincident", 1, 2, 0, 2),
    Sketcher.Constraint("Horizontal", 0),
    Sketcher.Constraint("Radius", 1, 4.25),
    Sketcher.Constraint("DistanceX", -1, 1, 1, 3, 80.0),
    Sketcher.Constraint("DistanceY", 0, 1, 1, 3, 4.0),
    Sketcher.Constraint("DistanceY", 1, 3, -1, 1, 61.5),
])
pad2 = body.newObject("PartDesign::Pad", "Pad001")
pad2.Profile = sketch21
pad2.Length = 3

sketch22 = body.newObject("Sketcher::SketchObject", "Sketch021")
sketch22.AttachmentSupport = (doc.getObject("XZ_Plane"), [""])
sketch22.MapMode = "FlatFace"
sketch22.AttachmentOffset = App.Placement(App.Vector(0, 0, -3), App.Rotation())
add_polygon(sketch22, [(26, -115), (26, -104), (65, -104), (65, -115)])
sketch22.addConstraint([
    Sketcher.Constraint("Vertical", 0),
    Sketcher.Constraint("Horizontal", 1),
    Sketcher.Constraint("Vertical", 2),
    Sketcher.Constraint("Horizontal", 3),
    Sketcher.Constraint("DistanceY", 0, 1, 0, 2, 11.0),
    Sketcher.Constraint("DistanceX", 1, 1, 1, 2, 38.5),
    Sketcher.Constraint("DistanceY", 0, 2, -1, 1, 104.0),
    Sketcher.Constraint("DistanceX", -1, 1, 1, 2, 65.0),
])
pocket20 = body.newObject("PartDesign::Pocket", "Pocket019")
pocket20.Profile = sketch22
pocket20.Length = 30
pocket20.Reversed = True

doc.recompute()
